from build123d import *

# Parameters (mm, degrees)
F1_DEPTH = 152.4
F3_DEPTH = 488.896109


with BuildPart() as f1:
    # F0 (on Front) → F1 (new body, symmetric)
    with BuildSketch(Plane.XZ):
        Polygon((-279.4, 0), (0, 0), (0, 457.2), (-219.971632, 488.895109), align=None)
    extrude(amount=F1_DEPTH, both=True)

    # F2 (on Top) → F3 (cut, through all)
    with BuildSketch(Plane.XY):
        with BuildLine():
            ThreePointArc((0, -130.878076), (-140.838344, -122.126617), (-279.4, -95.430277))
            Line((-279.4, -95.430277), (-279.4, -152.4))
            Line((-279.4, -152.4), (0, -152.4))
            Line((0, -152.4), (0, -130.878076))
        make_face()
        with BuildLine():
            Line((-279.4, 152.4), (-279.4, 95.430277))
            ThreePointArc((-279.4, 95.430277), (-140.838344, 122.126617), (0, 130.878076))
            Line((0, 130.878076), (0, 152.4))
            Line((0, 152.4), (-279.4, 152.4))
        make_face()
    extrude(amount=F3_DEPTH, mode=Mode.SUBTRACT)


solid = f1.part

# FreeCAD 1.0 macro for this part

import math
import FreeCAD as App
import Part
import Sketcher
from FreeCAD import Vector
Q = App.Units.Quantity

doc = App.newDocument("Part")
body = doc.addObject("PartDesign::Body", "Body")

# Sketch on XZ plane
sketch1 = body.newObject("Sketcher::SketchObject", "Sketch")
sketch1.AttachmentSupport = (doc.getObject("XZ_Plane"), [""])
sketch1.MapMode = "FlatFace"
sketch1.addGeometry(Part.LineSegment(Vector(-279, 0, 0), Vector(0, 0, 0)), False)
sketch1.addGeometry(Part.LineSegment(Vector(0, 0, 0), Vector(0, 457, 0)), False)
sketch1.addGeometry(Part.LineSegment(Vector(0, 457, 0), Vector(-220, 489, 0)), False)
sketch1.addGeometry(Part.LineSegment(Vector(-220, 489, 0), Vector(-279, 0, 0)), False)
sketch1.addConstraint(Sketcher.Constraint("Coincident", 0, 2, 1, 1))
sketch1.addConstraint(Sketcher.Constraint("Coincident", 1, 2, 2, 1))
sketch1.addConstraint(Sketcher.Constraint("Coincident", 2, 2, 3, 1))
sketch1.addConstraint(Sketcher.Constraint("Coincident", 3, 2, 0, 1))
sketch1.addConstraint(Sketcher.Constraint("Horizontal", 0))
sketch1.addConstraint(Sketcher.Constraint("Vertical", 1))
sketch1.addConstraint(Sketcher.Constraint("Coincident", 0, 2, -1, 1))
sketch1.addConstraint(Sketcher.Constraint("DistanceX", 0, 1, 0, 2, Q("11 in")))
sketch1.addConstraint(Sketcher.Constraint("DistanceY", 1, 1, 1, 2, Q("18 in")))
sketch1.addConstraint(Sketcher.Constraint("DistanceX", 2, 2, -1, 1, Q("219.971632 mm")))
sketch1.addConstraint(Sketcher.Constraint("DistanceY", -1, 1, 2, 2, Q("488.895109 mm")))
pad1 = body.newObject("PartDesign::Pad", "Pad")
pad1.Profile = sketch1
pad1.Length = Q("12 in")
pad1.Midplane = True

# Sketch on XY plane
sketch2 = body.newObject("Sketcher::SketchObject", "Sketch001")
sketch2.AttachmentSupport = (doc.getObject("XY_Plane"), [""])
sketch2.MapMode = "FlatFace"
sketch2.addGeometry(Part.ArcOfCircle(Part.Circle(Vector(-2, 970, 0), Vector(0, 0, 1), 1101), math.radians(-104.58), math.radians(-89.88)), False)
sketch2.addGeometry(Part.LineSegment(Vector(-279, -95, 0), Vector(-279, -152, 0)), False)
sketch2.addGeometry(Part.LineSegment(Vector(-279, -152, 0), Vector(0, -152, 0)), False)
sketch2.addGeometry(Part.LineSegment(Vector(0, -152, 0), Vector(0, -131, 0)), False)
sketch2.addGeometry(Part.LineSegment(Vector(-279, 152, 0), Vector(-279, 95, 0)), False)
sketch2.addGeometry(Part.ArcOfCircle(Part.Circle(Vector(-2, -970, 0), Vector(0, 0, 1), 1101), math.radians(89.88), math.radians(104.58)), False)
sketch2.addGeometry(Part.LineSegment(Vector(0, 131, 0), Vector(0, 152, 0)), False)
sketch2.addGeometry(Part.LineSegment(Vector(0, 152, 0), Vector(-279, 152, 0)), False)
sketch2.addConstraint(Sketcher.Constraint("Coincident", 0, 1, 1, 1))
sketch2.addConstraint(Sketcher.Constraint("Coincident", 1, 2, 2, 1))
sketch2.addConstraint(Sketcher.Constraint("Coincident", 2, 2, 3, 1))
sketch2.addConstraint(Sketcher.Constraint("Coincident", 3, 2, 0, 2))
sketch2.addConstraint(Sketcher.Constraint("Coincident", 4, 2, 5, 2))
sketch2.addConstraint(Sketcher.Constraint("Coincident", 5, 1, 6, 1))
sketch2.addConstraint(Sketcher.Constraint("Coincident", 6, 2, 7, 1))
sketch2.addConstraint(Sketcher.Constraint("Coincident", 7, 2, 4, 1))
sketch2.addConstraint(Sketcher.Constraint("Vertical", 1))
sketch2.addConstraint(Sketcher.Constraint("Horizontal", 2))
sketch2.addConstraint(Sketcher.Constraint("Vertical", 3))
sketch2.addConstraint(Sketcher.Constraint("Vertical", 4))
sketch2.addConstraint(Sketcher.Constraint("Vertical", 6))
sketch2.addConstraint(Sketcher.Constraint("Horizontal", 7))
sketch2.addConstraint(Sketcher.Constraint("Equal", 0, 5))
sketch2.addConstraint(Sketcher.Constraint("Symmetric", 2, 2, 6, 2, -1, 1))
sketch2.addConstraint(Sketcher.Constraint("Symmetric", 0, 3, 5, 3, -1))
sketch2.addConstraint(Sketcher.Constraint("PointOnObject", 2, 2, -2))
sketch2.addConstraint(Sketcher.Constraint("Vertical", 1, 2, 4, 2))
sketch2.addConstraint(Sketcher.Constraint("DistanceX", 2, 1, 2, 2, Q("11 in")))
sketch2.addConstraint(Sketcher.Constraint("DistanceY", 1, 2, -1, 1, Q("6 in")))
sketch2.addConstraint(Sketcher.Constraint("Radius", 0, Q("1100.797562 mm")))
sketch2.addConstraint(Sketcher.Constraint("DistanceY", 4, 2, 5, 1, Q("35.447799 mm")))
sketch2.addConstraint(Sketcher.Constraint("DistanceY", 1, 2, 1, 1, Q("56.969723 mm")))
pocket1 = body.newObject("PartDesign::Pocket", "Pocket")
pocket1.Profile = sketch2
pocket1.Type = "ThroughAll"
pocket1.Reversed = True

doc.recompute()
